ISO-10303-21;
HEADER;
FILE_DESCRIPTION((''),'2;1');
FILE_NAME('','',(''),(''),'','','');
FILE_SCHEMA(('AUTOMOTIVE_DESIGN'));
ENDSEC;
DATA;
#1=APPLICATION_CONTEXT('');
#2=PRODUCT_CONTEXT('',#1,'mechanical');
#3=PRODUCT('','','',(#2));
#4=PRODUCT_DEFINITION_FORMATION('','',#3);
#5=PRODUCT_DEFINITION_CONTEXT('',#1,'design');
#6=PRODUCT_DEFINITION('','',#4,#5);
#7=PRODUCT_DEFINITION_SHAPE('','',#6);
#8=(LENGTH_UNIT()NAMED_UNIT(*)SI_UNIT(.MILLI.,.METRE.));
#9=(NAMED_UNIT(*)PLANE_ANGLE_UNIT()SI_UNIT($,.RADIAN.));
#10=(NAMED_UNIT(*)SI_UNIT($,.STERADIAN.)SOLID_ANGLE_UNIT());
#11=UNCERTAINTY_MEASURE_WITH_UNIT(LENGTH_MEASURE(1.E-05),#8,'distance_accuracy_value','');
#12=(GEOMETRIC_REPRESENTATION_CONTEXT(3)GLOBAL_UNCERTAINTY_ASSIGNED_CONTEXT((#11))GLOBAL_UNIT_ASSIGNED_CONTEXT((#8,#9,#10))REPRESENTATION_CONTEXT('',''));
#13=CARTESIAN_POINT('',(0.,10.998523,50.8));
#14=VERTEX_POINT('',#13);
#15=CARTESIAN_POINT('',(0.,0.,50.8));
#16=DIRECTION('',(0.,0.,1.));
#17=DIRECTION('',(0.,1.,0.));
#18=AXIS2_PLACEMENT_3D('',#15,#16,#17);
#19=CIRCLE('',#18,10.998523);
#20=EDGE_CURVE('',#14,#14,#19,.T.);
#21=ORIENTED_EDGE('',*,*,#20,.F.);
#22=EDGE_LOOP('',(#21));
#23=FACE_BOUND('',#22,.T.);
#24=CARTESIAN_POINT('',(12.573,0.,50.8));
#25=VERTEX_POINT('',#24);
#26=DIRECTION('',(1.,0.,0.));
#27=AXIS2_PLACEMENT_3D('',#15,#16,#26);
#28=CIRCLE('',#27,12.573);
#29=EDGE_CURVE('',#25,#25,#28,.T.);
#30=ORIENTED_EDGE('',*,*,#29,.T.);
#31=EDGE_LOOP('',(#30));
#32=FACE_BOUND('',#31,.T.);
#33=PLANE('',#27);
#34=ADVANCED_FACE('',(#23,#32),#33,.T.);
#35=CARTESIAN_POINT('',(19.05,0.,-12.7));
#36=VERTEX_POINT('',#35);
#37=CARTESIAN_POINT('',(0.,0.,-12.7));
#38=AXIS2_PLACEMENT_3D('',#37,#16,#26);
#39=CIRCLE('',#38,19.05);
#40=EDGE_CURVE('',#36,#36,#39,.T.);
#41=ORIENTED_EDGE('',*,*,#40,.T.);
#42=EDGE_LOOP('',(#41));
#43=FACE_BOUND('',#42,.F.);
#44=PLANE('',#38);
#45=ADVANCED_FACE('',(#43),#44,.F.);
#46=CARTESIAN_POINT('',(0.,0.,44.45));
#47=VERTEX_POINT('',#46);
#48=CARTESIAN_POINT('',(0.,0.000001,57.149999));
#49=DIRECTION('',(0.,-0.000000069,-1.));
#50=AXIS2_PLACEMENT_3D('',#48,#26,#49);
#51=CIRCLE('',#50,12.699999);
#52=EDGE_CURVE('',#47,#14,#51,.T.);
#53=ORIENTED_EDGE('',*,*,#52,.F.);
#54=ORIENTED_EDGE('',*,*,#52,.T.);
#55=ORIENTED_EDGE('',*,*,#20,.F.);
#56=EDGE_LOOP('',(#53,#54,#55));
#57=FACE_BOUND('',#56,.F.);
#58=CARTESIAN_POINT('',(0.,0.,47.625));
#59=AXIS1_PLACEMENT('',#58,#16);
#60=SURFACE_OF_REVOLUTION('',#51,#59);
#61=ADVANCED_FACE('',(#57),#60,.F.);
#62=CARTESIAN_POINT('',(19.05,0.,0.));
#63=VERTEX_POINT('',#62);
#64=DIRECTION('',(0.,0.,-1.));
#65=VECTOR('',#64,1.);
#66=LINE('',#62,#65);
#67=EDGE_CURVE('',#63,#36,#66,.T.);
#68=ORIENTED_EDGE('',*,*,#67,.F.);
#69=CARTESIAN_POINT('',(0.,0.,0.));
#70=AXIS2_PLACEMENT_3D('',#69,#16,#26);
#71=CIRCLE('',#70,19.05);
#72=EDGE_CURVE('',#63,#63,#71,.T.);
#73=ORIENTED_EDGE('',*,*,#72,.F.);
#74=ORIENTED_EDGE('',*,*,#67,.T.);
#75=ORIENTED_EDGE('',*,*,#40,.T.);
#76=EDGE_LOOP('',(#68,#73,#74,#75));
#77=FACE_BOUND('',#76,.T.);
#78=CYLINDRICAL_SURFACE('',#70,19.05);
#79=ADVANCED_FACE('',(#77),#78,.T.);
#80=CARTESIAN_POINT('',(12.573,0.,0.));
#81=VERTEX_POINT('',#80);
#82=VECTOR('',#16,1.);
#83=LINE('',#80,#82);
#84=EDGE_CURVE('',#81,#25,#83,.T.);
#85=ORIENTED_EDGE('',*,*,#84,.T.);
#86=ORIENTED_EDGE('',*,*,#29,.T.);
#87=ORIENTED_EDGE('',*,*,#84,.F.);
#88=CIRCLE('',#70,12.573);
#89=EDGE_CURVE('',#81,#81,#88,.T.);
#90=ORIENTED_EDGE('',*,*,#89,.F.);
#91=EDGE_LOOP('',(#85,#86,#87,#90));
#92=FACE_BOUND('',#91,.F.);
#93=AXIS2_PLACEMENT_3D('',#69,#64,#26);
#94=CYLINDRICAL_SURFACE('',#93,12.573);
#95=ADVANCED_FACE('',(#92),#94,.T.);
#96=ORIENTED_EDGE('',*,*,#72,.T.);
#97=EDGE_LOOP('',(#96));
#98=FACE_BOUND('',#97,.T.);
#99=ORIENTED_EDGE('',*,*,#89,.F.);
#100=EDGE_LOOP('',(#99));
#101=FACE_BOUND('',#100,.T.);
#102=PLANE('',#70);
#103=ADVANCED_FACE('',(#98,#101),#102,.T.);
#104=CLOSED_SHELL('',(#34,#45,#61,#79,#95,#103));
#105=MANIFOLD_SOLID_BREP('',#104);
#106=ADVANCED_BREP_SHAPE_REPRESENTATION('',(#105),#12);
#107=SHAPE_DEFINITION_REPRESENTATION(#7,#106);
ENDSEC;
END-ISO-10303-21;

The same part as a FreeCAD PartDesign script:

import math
import FreeCAD as App
import Part
import Sketcher
from FreeCAD import Vector
Q = App.Units.Quantity

doc = App.newDocument("Part")
body = doc.addObject("PartDesign::Body", "Body")

# Sketch on XY plane
sketch1 = body.newObject("Sketcher::SketchObject", "Sketch")
sketch1.AttachmentSupport = (doc.getObject("XY_Plane"), [""])
sketch1.MapMode = "FlatFace"
sketch1.addGeometry(Part.Circle(Vector(0, 0, 0), Vector(0, 0, 1), 19), False)
sketch1.addConstraint([
    Sketcher.Constraint("Coincident", 0, 3, -1, 1),
    Sketcher.Constraint("Diameter", 0, Q("1.5 in")),
])
pad1 = body.newObject("PartDesign::Pad", "Pad")
pad1.Profile = sketch1
pad1.Length = Q("0.5 in")
pad1.Reversed = True

# Sketch on XY plane
sketch2 = body.newObject("Sketcher::SketchObject", "Sketch001")
sketch2.AttachmentSupport = (doc.getObject("XY_Plane"), [""])
sketch2.MapMode = "FlatFace"
sketch2.addGeometry(Part.Circle(Vector(0, 0, 0), Vector(0, 0, 1), 13), False)
sketch2.addConstraint([
    Sketcher.Constraint("Coincident", 0, 3, -1, 1),
    Sketcher.Constraint("Diameter", 0, Q("0.99 in")),
])
pad2 = body.newObject("PartDesign::Pad", "Pad001")
pad2.Profile = sketch2
pad2.Length = Q("2 in")

# Sketch on YZ plane
sketch3 = body.newObject("Sketcher::SketchObject", "Sketch002")
sketch3.AttachmentSupport = (doc.getObject("YZ_Plane"), [""])
sketch3.MapMode = "FlatFace"
sketch3.addGeometry([
    Part.ArcOfCircle(Part.Circle(Vector(0, 57, 0), Vector(0, 0, 1), 13), math.radians(-90), math.radians(-30)),
    Part.LineSegment(Vector(11, 51, 0), Vector(0, 51, 0)),
    Part.LineSegment(Vector(0, 51, 0), Vector(0, 44, 0)),
], False)
sketch3.addConstraint([
    Sketcher.Constraint("Coincident", 0, 2, 1, 1),
    Sketcher.Constraint("Coincident", 1, 2, 2, 1),
    Sketcher.Constraint("Coincident", 2, 2, 0, 1),
    Sketcher.Constraint("Horizontal", 1),
    Sketcher.Constraint("Vertical", 2),
    Sketcher.Constraint("PointOnObject", 0, 3, -2),
    Sketcher.Constraint("PointOnObject", 1, 2, -2),
    Sketcher.Constraint("Radius", 0, Q("0.5 in")),
    Sketcher.Constraint("DistanceY", -1, 1, 0, 2, Q("2 in")),
    Sketcher.Constraint("DistanceY", 2, 2, 2, 1, Q("0.25 in")),
])
groove = body.newObject("PartDesign::Groove", "Groove")
groove.Profile = sketch3
groove.ReferenceAxis = (sketch3, ["V_Axis"])
groove.Angle = 360

doc.recompute()
